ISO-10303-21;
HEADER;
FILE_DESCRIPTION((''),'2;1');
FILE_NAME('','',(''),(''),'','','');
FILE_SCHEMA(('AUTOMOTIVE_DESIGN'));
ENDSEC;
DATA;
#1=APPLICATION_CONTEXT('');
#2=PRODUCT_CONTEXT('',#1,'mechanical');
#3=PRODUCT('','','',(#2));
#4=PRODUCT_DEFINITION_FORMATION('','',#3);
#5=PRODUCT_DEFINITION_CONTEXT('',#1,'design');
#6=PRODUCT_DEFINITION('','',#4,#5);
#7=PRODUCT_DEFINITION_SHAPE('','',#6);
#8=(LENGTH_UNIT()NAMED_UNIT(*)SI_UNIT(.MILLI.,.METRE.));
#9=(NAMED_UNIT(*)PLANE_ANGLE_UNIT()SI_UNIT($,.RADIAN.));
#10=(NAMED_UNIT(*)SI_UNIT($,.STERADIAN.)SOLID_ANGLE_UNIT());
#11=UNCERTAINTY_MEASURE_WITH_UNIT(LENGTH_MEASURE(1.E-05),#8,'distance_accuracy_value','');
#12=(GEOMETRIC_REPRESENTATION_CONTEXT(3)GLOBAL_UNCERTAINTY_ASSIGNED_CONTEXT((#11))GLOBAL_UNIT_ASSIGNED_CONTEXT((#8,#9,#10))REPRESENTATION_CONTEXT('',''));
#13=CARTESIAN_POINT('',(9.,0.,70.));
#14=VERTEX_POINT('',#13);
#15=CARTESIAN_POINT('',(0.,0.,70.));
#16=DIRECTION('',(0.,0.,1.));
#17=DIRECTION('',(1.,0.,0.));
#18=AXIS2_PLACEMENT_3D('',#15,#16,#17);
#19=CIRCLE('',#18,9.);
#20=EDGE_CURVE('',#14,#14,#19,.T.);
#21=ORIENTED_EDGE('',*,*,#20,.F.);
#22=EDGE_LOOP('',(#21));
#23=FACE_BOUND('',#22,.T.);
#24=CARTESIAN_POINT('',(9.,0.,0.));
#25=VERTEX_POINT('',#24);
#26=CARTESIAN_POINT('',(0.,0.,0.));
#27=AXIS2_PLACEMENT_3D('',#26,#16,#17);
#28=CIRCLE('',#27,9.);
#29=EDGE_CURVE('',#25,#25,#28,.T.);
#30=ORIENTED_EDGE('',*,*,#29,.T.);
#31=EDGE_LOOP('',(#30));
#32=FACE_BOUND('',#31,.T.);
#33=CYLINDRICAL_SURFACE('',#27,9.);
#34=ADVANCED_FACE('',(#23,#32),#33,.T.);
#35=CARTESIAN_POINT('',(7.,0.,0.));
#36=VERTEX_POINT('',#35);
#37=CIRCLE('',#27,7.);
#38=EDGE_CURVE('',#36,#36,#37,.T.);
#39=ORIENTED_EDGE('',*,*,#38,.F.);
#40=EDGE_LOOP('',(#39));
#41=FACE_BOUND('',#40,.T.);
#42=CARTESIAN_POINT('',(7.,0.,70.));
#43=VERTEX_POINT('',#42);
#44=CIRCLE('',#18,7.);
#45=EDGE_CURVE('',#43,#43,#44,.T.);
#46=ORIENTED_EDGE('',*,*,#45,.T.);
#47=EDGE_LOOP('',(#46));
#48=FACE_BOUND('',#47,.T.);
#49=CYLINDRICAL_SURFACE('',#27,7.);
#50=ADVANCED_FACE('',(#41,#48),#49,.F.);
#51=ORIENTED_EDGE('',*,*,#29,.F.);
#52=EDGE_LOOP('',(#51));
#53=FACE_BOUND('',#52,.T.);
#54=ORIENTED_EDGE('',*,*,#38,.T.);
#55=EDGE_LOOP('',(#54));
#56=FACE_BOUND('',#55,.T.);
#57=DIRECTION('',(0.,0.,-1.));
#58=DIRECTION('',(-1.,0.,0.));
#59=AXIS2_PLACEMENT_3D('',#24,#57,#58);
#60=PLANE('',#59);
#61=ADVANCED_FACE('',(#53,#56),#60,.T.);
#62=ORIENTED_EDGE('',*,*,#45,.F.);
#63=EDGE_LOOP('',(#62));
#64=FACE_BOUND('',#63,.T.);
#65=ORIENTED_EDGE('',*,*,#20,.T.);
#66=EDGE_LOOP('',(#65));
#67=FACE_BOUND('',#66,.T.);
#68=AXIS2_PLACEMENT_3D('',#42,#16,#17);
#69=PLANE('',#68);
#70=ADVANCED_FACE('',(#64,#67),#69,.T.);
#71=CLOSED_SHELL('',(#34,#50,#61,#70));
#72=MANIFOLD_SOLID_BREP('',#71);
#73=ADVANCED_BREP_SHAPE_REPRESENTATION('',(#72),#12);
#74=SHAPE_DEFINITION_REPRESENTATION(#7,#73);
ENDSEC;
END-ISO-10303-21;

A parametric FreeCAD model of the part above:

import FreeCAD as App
import Part
import Sketcher


def add_polygon(sketch, points):
    """Adds a closed chain of lines whose ends are joined by coincident constraints."""
    first, n = sketch.GeometryCount, len(points)
    for a, b in zip(points, points[1:] + points[:1]):
        sketch.addGeometry(Part.LineSegment(App.Vector(*a, 0), App.Vector(*b, 0)), False)
    for i in range(n):
        sketch.addConstraint(Sketcher.Constraint("Coincident", first + i, 2, first + (i + 1) % n, 1))

doc = App.newDocument("Part")
body = doc.addObject("PartDesign::Body", "Body")

# Sketch on XZ plane
sketch1 = body.newObject("Sketcher::SketchObject", "Sketch")
sketch1.AttachmentSupport = (doc.getObject("XZ_Plane"), [""])
sketch1.MapMode = "FlatFace"
add_polygon(sketch1, [(7, 0), (7, 70), (9, 70), (9, 0)])  # lines 0-3
sketch1.addConstraint(Sketcher.Constraint("Vertical", 0))
sketch1.addConstraint(Sketcher.Constraint("Horizontal", 1))
sketch1.addConstraint(Sketcher.Constraint("Vertical", 2))
sketch1.addConstraint(Sketcher.Constraint("Horizontal", 3))
sketch1.addConstraint(Sketcher.Constraint("PointOnObject", 2, 2, -1))
sketch1.addConstraint(Sketcher.Constraint("DistanceX", 1, 1, 1, 2, 2.0))
sketch1.addConstraint(Sketcher.Constraint("DistanceY", 0, 1, 0, 2, 70.0))
sketch1.addConstraint(Sketcher.Constraint("DistanceX", -1, 1, 0, 2, 7.0))
revolution = body.newObject("PartDesign::Revolution", "Revolution")
revolution.Profile = sketch1
revolution.ReferenceAxis = (sketch1, ["V_Axis"])
revolution.Angle = 360

doc.recompute()
